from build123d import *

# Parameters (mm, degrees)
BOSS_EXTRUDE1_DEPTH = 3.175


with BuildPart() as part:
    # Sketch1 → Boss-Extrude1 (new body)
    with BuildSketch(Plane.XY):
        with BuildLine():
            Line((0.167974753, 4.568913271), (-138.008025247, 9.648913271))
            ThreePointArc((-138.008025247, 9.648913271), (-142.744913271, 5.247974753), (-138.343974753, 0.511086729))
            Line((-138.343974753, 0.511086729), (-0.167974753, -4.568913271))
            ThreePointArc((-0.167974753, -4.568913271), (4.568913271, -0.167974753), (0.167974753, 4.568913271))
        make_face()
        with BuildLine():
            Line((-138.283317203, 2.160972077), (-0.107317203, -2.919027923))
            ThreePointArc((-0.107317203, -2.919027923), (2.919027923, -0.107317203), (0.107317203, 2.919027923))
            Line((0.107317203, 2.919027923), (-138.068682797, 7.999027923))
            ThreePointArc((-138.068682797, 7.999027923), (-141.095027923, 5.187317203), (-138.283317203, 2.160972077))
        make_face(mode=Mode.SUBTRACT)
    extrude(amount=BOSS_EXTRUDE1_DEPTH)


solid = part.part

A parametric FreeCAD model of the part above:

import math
import FreeCAD as App
import Part
import Sketcher
Q = App.Units.Quantity

doc = App.newDocument("Part")
body = doc.addObject("PartDesign::Body", "Body")

# Sketch on XY plane
sketch1 = body.newObject("Sketcher::SketchObject", "Sketch")
sketch1.AttachmentSupport = (doc.getObject("XY_Plane"), [""])
sketch1.MapMode = "FlatFace"
sketch1.addGeometry([
    Part.LineSegment(App.Vector(0.2, 4.6, 0), App.Vector(-138, 9.6, 0)),  # 0
    Part.ArcOfCircle(Part.Circle(App.Vector(-138.2, 5.1, 0), App.Vector(0, 0, 1), 4.6), math.radians(88), math.radians(268)),  # 1
    Part.LineSegment(App.Vector(-138.3, 0.5, 0), App.Vector(-0.2, -4.6, 0)),  # 2
    Part.ArcOfCircle(Part.Circle(App.Vector(0, 0, 0), App.Vector(0, 0, 1), 4.6), math.radians(-92), math.radians(88)),  # 3
    Part.LineSegment(App.Vector(-0.1, -2.9, 0), App.Vector(-138.3, 2.2, 0)),  # 4
    Part.ArcOfCircle(Part.Circle(App.Vector(-138.2, 5.1, 0), App.Vector(0, 0, 1), 2.9), math.radians(88), math.radians(268)),  # 5
    Part.LineSegment(App.Vector(-138.1, 8, 0), App.Vector(0.1, 2.9, 0)),  # 6
    Part.ArcOfCircle(Part.Circle(App.Vector(0, 0, 0), App.Vector(0, 0, 1), 2.9), math.radians(-92), math.radians(88)),  # 7
], False)
sketch1.addConstraint([
    Sketcher.Constraint("Tangent", 0, 2, 1, 1),
    Sketcher.Constraint("Tangent", 1, 2, 2, 1),
    Sketcher.Constraint("Tangent", 2, 2, 3, 1),
    Sketcher.Constraint("Tangent", 3, 2, 0, 1),
    Sketcher.Constraint("Tangent", 4, 2, 5, 2),
    Sketcher.Constraint("Tangent", 5, 1, 6, 1),
    Sketcher.Constraint("Tangent", 6, 2, 7, 2),
    Sketcher.Constraint("Tangent", 7, 1, 4, 1),
    Sketcher.Constraint("Coincident", 3, 3, -1, 1),
    Sketcher.Constraint("Coincident", 7, 3, -1, 1),
    Sketcher.Constraint("Coincident", 5, 3, 1, 3),
    Sketcher.Constraint("Equal", 1, 3),
    Sketcher.Constraint("Equal", 5, 7),
    Sketcher.Constraint("Radius", 1, Q("0.18 in")),
    Sketcher.Constraint("Radius", 5, Q("0.115 in")),
    Sketcher.Constraint("DistanceY", -1, 1, 1, 3, Q("0.2 in")),
    Sketcher.Constraint("DistanceX", 1, 3, -1, 1, Q("5.44 in")),
])
pad1 = body.newObject("PartDesign::Pad", "Pad")
pad1.Profile = sketch1
pad1.Length = Q("0.125 in")

doc.recompute()
